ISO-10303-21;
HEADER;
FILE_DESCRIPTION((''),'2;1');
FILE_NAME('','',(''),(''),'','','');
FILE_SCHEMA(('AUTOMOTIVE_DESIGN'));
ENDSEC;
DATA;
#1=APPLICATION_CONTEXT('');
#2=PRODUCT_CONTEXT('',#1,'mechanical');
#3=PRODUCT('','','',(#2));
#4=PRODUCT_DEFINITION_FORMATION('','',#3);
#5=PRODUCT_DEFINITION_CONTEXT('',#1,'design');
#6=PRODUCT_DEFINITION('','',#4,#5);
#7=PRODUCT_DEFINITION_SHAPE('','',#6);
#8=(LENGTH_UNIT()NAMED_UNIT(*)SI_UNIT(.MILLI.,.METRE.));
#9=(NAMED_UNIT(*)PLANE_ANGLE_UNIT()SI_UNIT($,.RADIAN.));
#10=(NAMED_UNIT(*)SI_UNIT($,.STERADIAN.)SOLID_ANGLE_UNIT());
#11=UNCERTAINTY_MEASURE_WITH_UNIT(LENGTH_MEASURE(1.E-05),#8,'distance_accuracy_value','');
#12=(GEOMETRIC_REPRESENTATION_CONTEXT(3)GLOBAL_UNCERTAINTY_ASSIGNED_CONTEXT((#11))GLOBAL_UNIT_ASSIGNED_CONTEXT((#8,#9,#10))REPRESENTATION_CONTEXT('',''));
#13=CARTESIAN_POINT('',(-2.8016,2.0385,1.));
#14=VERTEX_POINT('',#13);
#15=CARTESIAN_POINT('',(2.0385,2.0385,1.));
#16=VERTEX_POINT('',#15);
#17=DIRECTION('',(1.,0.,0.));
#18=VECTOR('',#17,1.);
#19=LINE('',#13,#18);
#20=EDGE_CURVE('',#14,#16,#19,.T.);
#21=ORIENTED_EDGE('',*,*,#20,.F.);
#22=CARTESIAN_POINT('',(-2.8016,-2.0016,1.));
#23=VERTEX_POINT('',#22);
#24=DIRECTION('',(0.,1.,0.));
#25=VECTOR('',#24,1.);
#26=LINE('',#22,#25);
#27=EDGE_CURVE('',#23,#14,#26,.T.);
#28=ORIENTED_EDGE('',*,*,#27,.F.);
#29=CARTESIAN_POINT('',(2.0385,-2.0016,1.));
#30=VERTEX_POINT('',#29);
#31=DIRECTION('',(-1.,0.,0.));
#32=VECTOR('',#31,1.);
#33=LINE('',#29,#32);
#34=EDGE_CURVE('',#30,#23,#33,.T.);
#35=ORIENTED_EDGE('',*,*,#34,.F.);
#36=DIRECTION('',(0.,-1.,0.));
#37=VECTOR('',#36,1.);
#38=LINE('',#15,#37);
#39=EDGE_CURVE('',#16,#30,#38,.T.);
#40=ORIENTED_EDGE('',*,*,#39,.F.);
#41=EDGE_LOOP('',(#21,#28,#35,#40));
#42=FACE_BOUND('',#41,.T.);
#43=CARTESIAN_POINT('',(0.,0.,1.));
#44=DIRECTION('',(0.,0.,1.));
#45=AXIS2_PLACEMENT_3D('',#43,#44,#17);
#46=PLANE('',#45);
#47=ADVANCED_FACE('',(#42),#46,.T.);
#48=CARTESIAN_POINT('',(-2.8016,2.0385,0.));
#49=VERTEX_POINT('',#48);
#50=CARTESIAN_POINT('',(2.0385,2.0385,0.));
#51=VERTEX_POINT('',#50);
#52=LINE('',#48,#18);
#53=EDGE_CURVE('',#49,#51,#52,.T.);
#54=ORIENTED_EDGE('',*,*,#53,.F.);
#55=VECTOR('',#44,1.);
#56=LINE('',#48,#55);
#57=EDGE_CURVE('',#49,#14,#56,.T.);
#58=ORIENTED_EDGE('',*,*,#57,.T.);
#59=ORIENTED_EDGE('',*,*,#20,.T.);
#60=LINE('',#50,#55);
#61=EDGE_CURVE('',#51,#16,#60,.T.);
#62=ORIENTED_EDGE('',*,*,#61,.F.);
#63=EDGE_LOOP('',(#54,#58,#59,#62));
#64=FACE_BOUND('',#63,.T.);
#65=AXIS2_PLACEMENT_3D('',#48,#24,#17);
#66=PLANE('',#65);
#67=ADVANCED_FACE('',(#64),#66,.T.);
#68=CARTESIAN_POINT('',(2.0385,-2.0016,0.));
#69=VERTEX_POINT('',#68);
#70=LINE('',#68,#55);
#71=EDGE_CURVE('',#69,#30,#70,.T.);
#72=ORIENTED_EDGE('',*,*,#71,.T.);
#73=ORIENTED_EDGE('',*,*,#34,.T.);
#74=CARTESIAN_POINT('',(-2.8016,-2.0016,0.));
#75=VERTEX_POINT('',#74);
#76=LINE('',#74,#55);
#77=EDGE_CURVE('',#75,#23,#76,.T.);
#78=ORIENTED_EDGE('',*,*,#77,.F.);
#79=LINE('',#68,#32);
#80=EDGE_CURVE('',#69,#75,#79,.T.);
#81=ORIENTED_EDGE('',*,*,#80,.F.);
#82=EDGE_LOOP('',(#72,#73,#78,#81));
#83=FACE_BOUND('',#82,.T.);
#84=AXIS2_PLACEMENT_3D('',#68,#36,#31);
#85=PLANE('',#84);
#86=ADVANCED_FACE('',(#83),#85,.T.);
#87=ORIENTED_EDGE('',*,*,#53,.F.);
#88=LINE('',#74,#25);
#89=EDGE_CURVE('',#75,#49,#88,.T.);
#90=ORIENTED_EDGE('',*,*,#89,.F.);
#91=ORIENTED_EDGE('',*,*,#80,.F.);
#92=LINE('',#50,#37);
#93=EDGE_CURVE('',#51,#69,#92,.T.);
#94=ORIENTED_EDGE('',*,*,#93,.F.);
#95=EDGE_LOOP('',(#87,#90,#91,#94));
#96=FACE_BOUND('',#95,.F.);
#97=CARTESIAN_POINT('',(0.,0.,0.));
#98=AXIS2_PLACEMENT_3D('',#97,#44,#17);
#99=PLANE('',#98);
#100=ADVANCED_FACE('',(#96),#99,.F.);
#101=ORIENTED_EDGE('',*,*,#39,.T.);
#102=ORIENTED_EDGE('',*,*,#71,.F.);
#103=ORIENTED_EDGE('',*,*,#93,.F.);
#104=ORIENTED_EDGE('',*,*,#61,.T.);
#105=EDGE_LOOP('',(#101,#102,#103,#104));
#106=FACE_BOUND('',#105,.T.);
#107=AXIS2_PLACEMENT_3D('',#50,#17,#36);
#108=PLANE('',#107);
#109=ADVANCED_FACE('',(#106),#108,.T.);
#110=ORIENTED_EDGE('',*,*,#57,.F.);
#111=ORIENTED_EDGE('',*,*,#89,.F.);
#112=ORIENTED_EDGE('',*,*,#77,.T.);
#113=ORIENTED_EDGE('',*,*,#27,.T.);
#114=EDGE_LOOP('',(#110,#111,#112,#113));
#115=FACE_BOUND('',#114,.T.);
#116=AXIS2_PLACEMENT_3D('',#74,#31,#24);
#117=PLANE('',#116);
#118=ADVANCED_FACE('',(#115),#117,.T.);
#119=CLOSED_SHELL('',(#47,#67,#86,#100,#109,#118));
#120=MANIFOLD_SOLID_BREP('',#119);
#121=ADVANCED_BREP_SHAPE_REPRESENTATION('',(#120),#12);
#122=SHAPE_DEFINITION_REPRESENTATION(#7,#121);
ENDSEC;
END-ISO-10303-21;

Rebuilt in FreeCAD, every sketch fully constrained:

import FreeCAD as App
import Part
import Sketcher
from FreeCAD import Vector
Q = App.Units.Quantity


def add_polygon(sketch, points):
    """Adds a closed chain of lines whose ends are joined by coincident constraints."""
    first, n = sketch.GeometryCount, len(points)
    for a, b in zip(points, points[1:] + points[:1]):
        sketch.addGeometry(Part.LineSegment(App.Vector(*a, 0), App.Vector(*b, 0)), False)
    for i in range(n):
        sketch.addConstraint(Sketcher.Constraint("Coincident", first + i, 2, first + (i + 1) % n, 1))

doc = App.newDocument("Part")
params = doc.addObject("Spreadsheet::Sheet", "Params")
for row, (alias, value) in enumerate([
    ("sketch1_width", "4.84 mm"),
    ("sketch1_height", "4.04 mm"),
    ("pad1_length", "1 mm"),
], start=1):
    params.set(f"A{row}", alias)
    params.set(f"B{row}", "=" + value)
    params.setAlias(f"B{row}", alias)

body = doc.addObject("PartDesign::Body", "Body")

# Sketch on XY plane
sketch1 = doc.addObject("Sketcher::SketchObject", "Sketch")
body.addObject(sketch1)
sketch1.AttachmentSupport = (doc.XY_Plane, [""])
sketch1.MapMode = "FlatFace"
add_polygon(sketch1, [(2, 2), (-2.8, 2), (-2.8, -2), (2, -2)])  # lines 0-3
sketch1.addConstraint([
    Sketcher.Constraint("Horizontal", 0),
    Sketcher.Constraint("Vertical", 1),
    Sketcher.Constraint("Horizontal", 2),
    Sketcher.Constraint("Vertical", 3),
    Sketcher.Constraint("DistanceX", 0, 2, 0, 1, Q("4.84 mm")),
    Sketcher.Constraint("DistanceY", 1, 2, 1, 1, Q("4.04 mm")),
    Sketcher.Constraint("DistanceX", 0, 2, -1, 1, Q("2.8016 mm")),
    Sketcher.Constraint("DistanceY", -1, 1, 0, 2, Q("2.0385 mm")),
])
sketch1.setExpression("Constraints[8]", "Params.sketch1_width")
sketch1.setExpression("Constraints[9]", "Params.sketch1_height")
pad1 = doc.addObject("PartDesign::Pad", "Pad")
body.addObject(pad1)
pad1.Profile = sketch1
pad1.setExpression("Length", "Params.pad1_length")

doc.recompute()
